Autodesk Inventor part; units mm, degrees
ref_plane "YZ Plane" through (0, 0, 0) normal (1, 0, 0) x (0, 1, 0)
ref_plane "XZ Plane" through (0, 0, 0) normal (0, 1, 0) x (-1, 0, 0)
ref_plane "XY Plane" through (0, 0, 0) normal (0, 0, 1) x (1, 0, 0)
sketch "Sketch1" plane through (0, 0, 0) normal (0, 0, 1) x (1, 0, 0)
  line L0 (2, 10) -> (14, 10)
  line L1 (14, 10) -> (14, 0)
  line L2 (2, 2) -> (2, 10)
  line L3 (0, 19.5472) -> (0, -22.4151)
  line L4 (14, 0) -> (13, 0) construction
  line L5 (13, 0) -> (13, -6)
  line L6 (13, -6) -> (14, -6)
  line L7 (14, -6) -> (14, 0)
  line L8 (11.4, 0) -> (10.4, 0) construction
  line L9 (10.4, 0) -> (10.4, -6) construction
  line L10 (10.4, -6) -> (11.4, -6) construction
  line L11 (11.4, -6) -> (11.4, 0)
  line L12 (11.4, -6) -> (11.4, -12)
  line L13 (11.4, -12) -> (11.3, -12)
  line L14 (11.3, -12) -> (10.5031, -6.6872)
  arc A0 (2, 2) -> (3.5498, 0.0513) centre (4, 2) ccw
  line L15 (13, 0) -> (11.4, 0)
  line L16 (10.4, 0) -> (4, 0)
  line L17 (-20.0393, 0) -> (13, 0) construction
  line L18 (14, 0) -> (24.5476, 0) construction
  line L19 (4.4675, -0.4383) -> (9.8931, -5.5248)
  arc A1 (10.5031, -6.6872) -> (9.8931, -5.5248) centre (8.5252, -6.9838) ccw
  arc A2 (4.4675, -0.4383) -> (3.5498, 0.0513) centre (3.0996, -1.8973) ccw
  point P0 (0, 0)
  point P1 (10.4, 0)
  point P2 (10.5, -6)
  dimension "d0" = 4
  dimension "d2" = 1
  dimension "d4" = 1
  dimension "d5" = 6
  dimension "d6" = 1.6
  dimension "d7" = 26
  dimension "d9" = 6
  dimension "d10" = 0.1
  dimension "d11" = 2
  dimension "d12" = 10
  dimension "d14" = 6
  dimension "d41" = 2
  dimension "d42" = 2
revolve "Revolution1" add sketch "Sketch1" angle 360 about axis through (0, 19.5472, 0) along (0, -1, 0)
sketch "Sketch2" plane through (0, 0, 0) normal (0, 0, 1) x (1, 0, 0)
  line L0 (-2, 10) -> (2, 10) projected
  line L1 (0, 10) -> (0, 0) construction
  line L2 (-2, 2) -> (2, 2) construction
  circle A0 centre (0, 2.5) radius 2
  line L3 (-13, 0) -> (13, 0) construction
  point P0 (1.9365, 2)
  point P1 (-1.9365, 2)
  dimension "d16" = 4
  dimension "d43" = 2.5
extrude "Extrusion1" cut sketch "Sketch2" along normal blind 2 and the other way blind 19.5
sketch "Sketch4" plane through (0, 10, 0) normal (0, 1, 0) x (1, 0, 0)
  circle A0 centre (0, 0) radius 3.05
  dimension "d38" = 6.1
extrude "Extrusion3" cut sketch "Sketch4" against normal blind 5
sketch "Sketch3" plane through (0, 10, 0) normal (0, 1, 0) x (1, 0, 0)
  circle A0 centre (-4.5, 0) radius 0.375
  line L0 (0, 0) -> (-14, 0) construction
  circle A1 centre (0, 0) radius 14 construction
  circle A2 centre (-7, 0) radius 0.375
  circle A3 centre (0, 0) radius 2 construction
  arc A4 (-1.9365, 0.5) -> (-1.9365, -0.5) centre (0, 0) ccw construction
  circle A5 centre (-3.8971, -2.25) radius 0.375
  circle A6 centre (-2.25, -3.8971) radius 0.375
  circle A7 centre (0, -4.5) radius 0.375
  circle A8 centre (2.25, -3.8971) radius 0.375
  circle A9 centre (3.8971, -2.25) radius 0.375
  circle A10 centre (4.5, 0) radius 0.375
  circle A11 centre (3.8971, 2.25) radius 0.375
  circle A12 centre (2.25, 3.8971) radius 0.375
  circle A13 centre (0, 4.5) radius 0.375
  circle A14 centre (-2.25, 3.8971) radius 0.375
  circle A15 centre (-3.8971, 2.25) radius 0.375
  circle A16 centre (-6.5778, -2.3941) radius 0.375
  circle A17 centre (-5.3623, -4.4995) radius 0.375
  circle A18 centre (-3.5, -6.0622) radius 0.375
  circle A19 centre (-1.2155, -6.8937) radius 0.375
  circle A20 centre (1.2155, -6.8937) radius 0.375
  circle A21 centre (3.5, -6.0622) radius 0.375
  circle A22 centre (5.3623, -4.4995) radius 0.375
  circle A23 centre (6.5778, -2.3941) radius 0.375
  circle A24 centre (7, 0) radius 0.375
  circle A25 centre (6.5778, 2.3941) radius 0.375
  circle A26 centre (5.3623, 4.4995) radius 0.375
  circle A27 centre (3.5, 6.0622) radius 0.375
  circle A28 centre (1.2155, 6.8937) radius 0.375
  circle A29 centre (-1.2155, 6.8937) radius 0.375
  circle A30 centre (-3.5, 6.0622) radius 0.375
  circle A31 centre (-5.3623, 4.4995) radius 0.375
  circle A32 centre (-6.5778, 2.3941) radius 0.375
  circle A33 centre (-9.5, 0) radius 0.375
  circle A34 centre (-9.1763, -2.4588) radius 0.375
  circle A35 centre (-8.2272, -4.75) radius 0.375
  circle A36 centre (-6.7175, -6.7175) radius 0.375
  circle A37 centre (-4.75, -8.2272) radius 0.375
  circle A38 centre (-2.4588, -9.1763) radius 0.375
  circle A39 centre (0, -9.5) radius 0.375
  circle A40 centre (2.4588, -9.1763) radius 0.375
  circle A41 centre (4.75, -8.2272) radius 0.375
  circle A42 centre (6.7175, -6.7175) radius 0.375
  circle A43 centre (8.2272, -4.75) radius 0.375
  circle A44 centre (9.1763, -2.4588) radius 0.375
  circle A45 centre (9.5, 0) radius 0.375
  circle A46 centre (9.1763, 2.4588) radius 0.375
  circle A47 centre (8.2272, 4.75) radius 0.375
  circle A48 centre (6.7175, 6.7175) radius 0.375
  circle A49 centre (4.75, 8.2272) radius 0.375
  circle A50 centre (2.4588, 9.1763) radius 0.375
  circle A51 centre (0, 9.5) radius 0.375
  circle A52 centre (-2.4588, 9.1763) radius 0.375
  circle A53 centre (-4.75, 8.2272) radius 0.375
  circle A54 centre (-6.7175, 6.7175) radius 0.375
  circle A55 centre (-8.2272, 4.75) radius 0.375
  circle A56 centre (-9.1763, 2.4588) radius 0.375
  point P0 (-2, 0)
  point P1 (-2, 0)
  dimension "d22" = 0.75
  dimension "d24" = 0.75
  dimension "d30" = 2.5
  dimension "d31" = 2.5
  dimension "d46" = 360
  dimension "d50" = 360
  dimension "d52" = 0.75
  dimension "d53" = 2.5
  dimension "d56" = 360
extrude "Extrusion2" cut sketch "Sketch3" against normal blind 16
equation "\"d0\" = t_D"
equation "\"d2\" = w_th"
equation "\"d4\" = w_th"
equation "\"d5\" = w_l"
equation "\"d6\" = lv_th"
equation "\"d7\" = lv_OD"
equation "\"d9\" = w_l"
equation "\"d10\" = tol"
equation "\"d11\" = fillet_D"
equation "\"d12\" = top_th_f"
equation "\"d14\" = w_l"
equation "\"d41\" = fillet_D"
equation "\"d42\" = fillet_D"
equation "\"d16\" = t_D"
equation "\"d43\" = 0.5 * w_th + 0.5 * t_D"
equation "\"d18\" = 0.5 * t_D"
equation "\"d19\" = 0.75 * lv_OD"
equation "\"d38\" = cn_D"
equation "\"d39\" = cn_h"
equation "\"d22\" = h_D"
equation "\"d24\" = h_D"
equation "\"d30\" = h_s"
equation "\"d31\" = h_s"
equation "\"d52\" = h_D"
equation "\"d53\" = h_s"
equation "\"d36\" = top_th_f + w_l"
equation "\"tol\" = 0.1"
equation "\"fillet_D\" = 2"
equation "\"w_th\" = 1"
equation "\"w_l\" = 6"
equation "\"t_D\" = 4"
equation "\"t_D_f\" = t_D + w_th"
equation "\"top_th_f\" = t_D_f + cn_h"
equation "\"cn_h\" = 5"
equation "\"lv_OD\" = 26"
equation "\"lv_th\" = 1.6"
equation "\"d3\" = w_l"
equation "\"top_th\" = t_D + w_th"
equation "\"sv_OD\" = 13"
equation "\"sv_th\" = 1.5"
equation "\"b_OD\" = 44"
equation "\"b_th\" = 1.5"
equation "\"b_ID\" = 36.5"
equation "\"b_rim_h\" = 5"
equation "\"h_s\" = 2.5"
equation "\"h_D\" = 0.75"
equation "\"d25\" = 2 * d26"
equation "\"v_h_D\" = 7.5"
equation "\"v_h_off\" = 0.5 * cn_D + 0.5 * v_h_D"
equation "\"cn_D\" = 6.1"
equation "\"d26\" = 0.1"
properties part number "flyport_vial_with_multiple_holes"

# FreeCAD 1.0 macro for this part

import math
import FreeCAD as App
import Part
import Sketcher
from FreeCAD import Vector
Q = App.Units.Quantity

doc = App.newDocument("Part")
body = doc.addObject("PartDesign::Body", "Body")

sketch1 = body.newObject("Sketcher::SketchObject", "Sketch")
sketch1.AttachmentSupport = (doc.getObject("XY_Plane"), [""])
sketch1.MapMode = "FlatFace"
sketch1.addGeometry([
    Part.LineSegment(Vector(14, 10, 0), Vector(2, 10, 0)),
    Part.LineSegment(Vector(2, 10, 0), Vector(2, 2, 0)),
    Part.ArcOfCircle(Part.Circle(Vector(4, 2, 0), Vector(0, 0, 1), 2), math.radians(180), math.radians(257)),
    Part.ArcOfCircle(Part.Circle(Vector(3.1, -1.9, 0), Vector(0, 0, 1), 2), math.radians(47), math.radians(77)),
    Part.LineSegment(Vector(4.47, -0.44, 0), Vector(9.89, -5.52, 0)),
    Part.ArcOfCircle(Part.Circle(Vector(8.53, -6.98, 0), Vector(0, 0, 1), 2), math.radians(9), math.radians(47)),
    Part.LineSegment(Vector(10.5, -6.69, 0), Vector(11.3, -12, 0)),
    Part.LineSegment(Vector(11.3, -12, 0), Vector(11.4, -12, 0)),
    Part.LineSegment(Vector(11.4, -12, 0), Vector(11.4, 0, 0)),
    Part.LineSegment(Vector(11.4, 0, 0), Vector(13, 0, 0)),
    Part.LineSegment(Vector(13, 0, 0), Vector(13, -6, 0)),
    Part.LineSegment(Vector(13, -6, 0), Vector(14, -6, 0)),
    Part.LineSegment(Vector(14, -6, 0), Vector(14, 10, 0)),
], False)
sketch1.addConstraint([
    Sketcher.Constraint("Coincident", 0, 2, 1, 1),
    Sketcher.Constraint("Tangent", 1, 2, 2, 1),
    Sketcher.Constraint("Tangent", 2, 2, 3, 2),
    Sketcher.Constraint("Tangent", 3, 1, 4, 1),
    Sketcher.Constraint("Tangent", 4, 2, 5, 2),
    Sketcher.Constraint("Tangent", 5, 1, 6, 1),
    Sketcher.Constraint("Coincident", 6, 2, 7, 1),
    Sketcher.Constraint("Coincident", 7, 2, 8, 1),
    Sketcher.Constraint("Coincident", 8, 2, 9, 1),
    Sketcher.Constraint("Coincident", 9, 2, 10, 1),
    Sketcher.Constraint("Coincident", 10, 2, 11, 1),
    Sketcher.Constraint("Coincident", 11, 2, 12, 1),
    Sketcher.Constraint("Coincident", 12, 2, 0, 1),
    Sketcher.Constraint("Horizontal", 0),
    Sketcher.Constraint("Vertical", 1),
    Sketcher.Constraint("Horizontal", 7),
    Sketcher.Constraint("Vertical", 8),
    Sketcher.Constraint("Horizontal", 9),
    Sketcher.Constraint("Vertical", 10),
    Sketcher.Constraint("Horizontal", 11),
    Sketcher.Constraint("Vertical", 12),
    Sketcher.Constraint("Equal", 2, 3),
    Sketcher.Constraint("Equal", 3, 5),
    Sketcher.Constraint("PointOnObject", 8, 2, -1),
    Sketcher.Constraint("Equal", 0, 8),
    Sketcher.Constraint("Radius", 2, 2.0),
    Sketcher.Constraint("DistanceX", 11, 1, 11, 2, 1.0),
    Sketcher.Constraint("DistanceY", 10, 2, 10, 1, 6.0),
    Sketcher.Constraint("DistanceX", 7, 1, 7, 2, 0.1),
    Sketcher.Constraint("DistanceX", 9, 1, 9, 2, 1.6),
    Sketcher.Constraint("DistanceX", -1, 1, 2, 3, 4.0),
    Sketcher.Constraint("DistanceY", -1, 1, 2, 3, 2.0),
    Sketcher.Constraint("DistanceY", -1, 1, 0, 2, 10.0),
    Sketcher.Constraint("DistanceY", 7, 2, 10, 2, 6.0),
    Sketcher.Constraint("Angle", 6, Q("-81.4694 deg")),
    Sketcher.Constraint("DistanceX", 4, 2, 5, 1, 0.61),
    Sketcher.Constraint("DistanceY", 5, 1, 3, 3, 4.79),
])
revolution = body.newObject("PartDesign::Revolution", "Revolution")
revolution.Profile = sketch1
revolution.ReferenceAxis = (sketch1, ["V_Axis"])
revolution.Angle = 360

sketch2 = body.newObject("Sketcher::SketchObject", "Sketch001")
sketch2.AttachmentSupport = (doc.getObject("XY_Plane"), [""])
sketch2.MapMode = "FlatFace"
sketch2.addGeometry(Part.Circle(Vector(0, 2.5, 0), Vector(0, 0, 1), 2), False)
sketch2.addConstraint([
    Sketcher.Constraint("PointOnObject", 0, 3, -2),
    Sketcher.Constraint("Diameter", 0, 4.0),
    Sketcher.Constraint("DistanceY", -1, 1, 0, 3, 2.5),
])
pocket1 = body.newObject("PartDesign::Pocket", "Pocket")
pocket1.Profile = sketch2
pocket1.Type = "TwoLengths"
pocket1.Length = 2
pocket1.Length2 = 19.5
pocket1.Reversed = True

sketch3 = body.newObject("Sketcher::SketchObject", "Sketch002")
sketch3.AttachmentSupport = (doc.getObject("XZ_Plane"), [""])
sketch3.MapMode = "FlatFace"
sketch3.AttachmentOffset = App.Placement(Vector(0, 0, -10), App.Rotation())
sketch3.addGeometry(Part.Circle(Vector(0, 0, 0), Vector(0, 0, 1), 3), False)
sketch3.addConstraint([
    Sketcher.Constraint("Coincident", 0, 3, -1, 1),
    Sketcher.Constraint("Diameter", 0, 6.1),
])
pocket2 = body.newObject("PartDesign::Pocket", "Pocket001")
pocket2.Profile = sketch3
pocket2.Length = 5
pocket2.Reversed = True

sketch4 = body.newObject("Sketcher::SketchObject", "Sketch003")
sketch4.AttachmentSupport = (doc.getObject("XZ_Plane"), [""])
sketch4.MapMode = "FlatFace"
sketch4.AttachmentOffset = App.Placement(Vector(0, 0, -10), App.Rotation())
sketch4.addGeometry([
    Part.Circle(Vector(-4.5, 0, 0), Vector(0, 0, 1), 0.38),
    Part.Circle(Vector(-7, 0, 0), Vector(0, 0, 1), 0.38),
    Part.Circle(Vector(-3.9, 2.25, 0), Vector(0, 0, 1), 0.38),
    Part.Circle(Vector(-2.25, 3.9, 0), Vector(0, 0, 1), 0.38),
    Part.Circle(Vector(0, 4.5, 0), Vector(0, 0, 1), 0.38),
    Part.Circle(Vector(2.25, 3.9, 0), Vector(0, 0, 1), 0.38),
    Part.Circle(Vector(3.9, 2.25, 0), Vector(0, 0, 1), 0.38),
    Part.Circle(Vector(4.5, 0, 0), Vector(0, 0, 1), 0.38),
    Part.Circle(Vector(3.9, -2.25, 0), Vector(0, 0, 1), 0.38),
    Part.Circle(Vector(2.25, -3.9, 0), Vector(0, 0, 1), 0.38),
    Part.Circle(Vector(0, -4.5, 0), Vector(0, 0, 1), 0.38),
    Part.Circle(Vector(-2.25, -3.9, 0), Vector(0, 0, 1), 0.38),
    Part.Circle(Vector(-3.9, -2.25, 0), Vector(0, 0, 1), 0.38),
    Part.Circle(Vector(-6.58, 2.39, 0), Vector(0, 0, 1), 0.38),
    Part.Circle(Vector(-5.36, 4.5, 0), Vector(0, 0, 1), 0.38),
    Part.Circle(Vector(-3.5, 6.06, 0), Vector(0, 0, 1), 0.38),
    Part.Circle(Vector(-1.22, 6.89, 0), Vector(0, 0, 1), 0.38),
    Part.Circle(Vector(1.22, 6.89, 0), Vector(0, 0, 1), 0.38),
    Part.Circle(Vector(3.5, 6.06, 0), Vector(0, 0, 1), 0.38),
    Part.Circle(Vector(5.36, 4.5, 0), Vector(0, 0, 1), 0.38),
    Part.Circle(Vector(6.58, 2.39, 0), Vector(0, 0, 1), 0.38),
    Part.Circle(Vector(7, 0, 0), Vector(0, 0, 1), 0.38),
    Part.Circle(Vector(6.58, -2.39, 0), Vector(0, 0, 1), 0.38),
    Part.Circle(Vector(5.36, -4.5, 0), Vector(0, 0, 1), 0.38),
    Part.Circle(Vector(3.5, -6.06, 0), Vector(0, 0, 1), 0.38),
    Part.Circle(Vector(1.22, -6.89, 0), Vector(0, 0, 1), 0.38),
    Part.Circle(Vector(-1.22, -6.89, 0), Vector(0, 0, 1), 0.38),
    Part.Circle(Vector(-3.5, -6.06, 0), Vector(0, 0, 1), 0.38),
    Part.Circle(Vector(-5.36, -4.5, 0), Vector(0, 0, 1), 0.38),
    Part.Circle(Vector(-6.58, -2.39, 0), Vector(0, 0, 1), 0.38),
    Part.Circle(Vector(-9.5, 0, 0), Vector(0, 0, 1), 0.38),
    Part.Circle(Vector(-9.18, 2.46, 0), Vector(0, 0, 1), 0.38),
    Part.Circle(Vector(-8.23, 4.75, 0), Vector(0, 0, 1), 0.38),
    Part.Circle(Vector(-6.72, 6.72, 0), Vector(0, 0, 1), 0.38),
    Part.Circle(Vector(-4.75, 8.23, 0), Vector(0, 0, 1), 0.38),
    Part.Circle(Vector(-2.46, 9.18, 0), Vector(0, 0, 1), 0.38),
    Part.Circle(Vector(0, 9.5, 0), Vector(0, 0, 1), 0.38),
    Part.Circle(Vector(2.46, 9.18, 0), Vector(0, 0, 1), 0.38),
    Part.Circle(Vector(4.75, 8.23, 0), Vector(0, 0, 1), 0.38),
    Part.Circle(Vector(6.72, 6.72, 0), Vector(0, 0, 1), 0.38),
    Part.Circle(Vector(8.23, 4.75, 0), Vector(0, 0, 1), 0.38),
    Part.Circle(Vector(9.18, 2.46, 0), Vector(0, 0, 1), 0.38),
    Part.Circle(Vector(9.5, 0, 0), Vector(0, 0, 1), 0.38),
    Part.Circle(Vector(9.18, -2.46, 0), Vector(0, 0, 1), 0.38),
    Part.Circle(Vector(8.23, -4.75, 0), Vector(0, 0, 1), 0.38),
    Part.Circle(Vector(6.72, -6.72, 0), Vector(0, 0, 1), 0.38),
    Part.Circle(Vector(4.75, -8.23, 0), Vector(0, 0, 1), 0.38),
    Part.Circle(Vector(2.46, -9.18, 0), Vector(0, 0, 1), 0.38),
    Part.Circle(Vector(0, -9.5, 0), Vector(0, 0, 1), 0.38),
    Part.Circle(Vector(-2.46, -9.18, 0), Vector(0, 0, 1), 0.38),
    Part.Circle(Vector(-4.75, -8.23, 0), Vector(0, 0, 1), 0.38),
    Part.Circle(Vector(-6.72, -6.72, 0), Vector(0, 0, 1), 0.38),
    Part.Circle(Vector(-8.23, -4.75, 0), Vector(0, 0, 1), 0.38),
    Part.Circle(Vector(-9.18, -2.46, 0), Vector(0, 0, 1), 0.38),
], False)
sketch4.addConstraint([
    Sketcher.Constraint("Equal", 0, 1),
    Sketcher.Constraint("Equal", 1, 2),
    Sketcher.Constraint("Equal", 2, 3),
    Sketcher.Constraint("Equal", 3, 4),
    Sketcher.Constraint("Equal", 4, 5),
    Sketcher.Constraint("Equal", 5, 6),
    Sketcher.Constraint("Equal", 6, 7),
    Sketcher.Constraint("Equal", 7, 8),
    Sketcher.Constraint("Equal", 8, 9),
    Sketcher.Constraint("Equal", 9, 10),
    Sketcher.Constraint("Equal", 10, 11),
    Sketcher.Constraint("Equal", 11, 12),
    Sketcher.Constraint("Equal", 12, 13),
    Sketcher.Constraint("Equal", 13, 14),
    Sketcher.Constraint("Equal", 14, 15),
    Sketcher.Constraint("Equal", 15, 16),
    Sketcher.Constraint("Equal", 16, 17),
    Sketcher.Constraint("Equal", 17, 18),
    Sketcher.Constraint("Equal", 18, 19),
    Sketcher.Constraint("Equal", 19, 20),
    Sketcher.Constraint("Equal", 20, 21),
    Sketcher.Constraint("Equal", 21, 22),
    Sketcher.Constraint("Equal", 22, 23),
    Sketcher.Constraint("Equal", 23, 24),
    Sketcher.Constraint("Equal", 24, 25),
    Sketcher.Constraint("Equal", 25, 26),
    Sketcher.Constraint("Equal", 26, 27),
    Sketcher.Constraint("Equal", 27, 28),
    Sketcher.Constraint("Equal", 28, 29),
    Sketcher.Constraint("Equal", 29, 30),
    Sketcher.Constraint("Equal", 30, 31),
    Sketcher.Constraint("Equal", 31, 32),
    Sketcher.Constraint("Equal", 32, 33),
    Sketcher.Constraint("Equal", 33, 34),
    Sketcher.Constraint("Equal", 34, 35),
    Sketcher.Constraint("Equal", 35, 36),
    Sketcher.Constraint("Equal", 36, 37),
    Sketcher.Constraint("Equal", 37, 38),
    Sketcher.Constraint("Equal", 38, 39),
    Sketcher.Constraint("Equal", 39, 40),
    Sketcher.Constraint("Equal", 40, 41),
    Sketcher.Constraint("Equal", 41, 42),
    Sketcher.Constraint("Equal", 42, 43),
    Sketcher.Constraint("Equal", 43, 44),
    Sketcher.Constraint("Equal", 44, 45),
    Sketcher.Constraint("Equal", 45, 46),
    Sketcher.Constraint("Equal", 46, 47),
    Sketcher.Constraint("Equal", 47, 48),
    Sketcher.Constraint("Equal", 48, 49),
    Sketcher.Constraint("Equal", 49, 50),
    Sketcher.Constraint("Equal", 50, 51),
    Sketcher.Constraint("Equal", 51, 52),
    Sketcher.Constraint("Equal", 52, 53),
    Sketcher.Constraint("Symmetric", 0, 3, 7, 3, -1, 1),
    Sketcher.Constraint("Symmetric", 2, 3, 8, 3, -1, 1),
    Sketcher.Constraint("Symmetric", 3, 3, 9, 3, -1, 1),
    Sketcher.Constraint("Symmetric", 4, 3, 10, 3, -1, 1),
    Sketcher.Constraint("Symmetric", 5, 3, 11, 3, -1, 1),
    Sketcher.Constraint("Symmetric", 6, 3, 12, 3, -1, 1),
    Sketcher.Constraint("Symmetric", 1, 3, 21, 3, -1, 1),
    Sketcher.Constraint("Symmetric", 13, 3, 22, 3, -1, 1),
    Sketcher.Constraint("Symmetric", 14, 3, 23, 3, -1, 1),
    Sketcher.Constraint("Symmetric", 15, 3, 24, 3, -1, 1),
    Sketcher.Constraint("Symmetric", 16, 3, 25, 3, -1, 1),
    Sketcher.Constraint("Symmetric", 17, 3, 26, 3, -1, 1),
    Sketcher.Constraint("Symmetric", 18, 3, 27, 3, -1, 1),
    Sketcher.Constraint("Symmetric", 19, 3, 28, 3, -1, 1),
    Sketcher.Constraint("Symmetric", 20, 3, 29, 3, -1, 1),
    Sketcher.Constraint("Symmetric", 30, 3, 42, 3, -1, 1),
    Sketcher.Constraint("Symmetric", 31, 3, 43, 3, -1, 1),
    Sketcher.Constraint("Symmetric", 32, 3, 44, 3, -1, 1),
    Sketcher.Constraint("Symmetric", 33, 3, 45, 3, -1, 1),
    Sketcher.Constraint("Symmetric", 34, 3, 46, 3, -1, 1),
    Sketcher.Constraint("Symmetric", 35, 3, 47, 3, -1, 1),
    Sketcher.Constraint("Symmetric", 36, 3, 48, 3, -1, 1),
    Sketcher.Constraint("Symmetric", 37, 3, 49, 3, -1, 1),
    Sketcher.Constraint("Symmetric", 38, 3, 50, 3, -1, 1),
    Sketcher.Constraint("Symmetric", 39, 3, 51, 3, -1, 1),
    Sketcher.Constraint("Symmetric", 40, 3, 52, 3, -1, 1),
    Sketcher.Constraint("Symmetric", 41, 3, 53, 3, -1, 1),
    Sketcher.Constraint("Symmetric", 3, 3, 5, 3, -2),
    Sketcher.Constraint("Symmetric", 2, 3, 6, 3, -2),
    Sketcher.Constraint("Symmetric", 16, 3, 17, 3, -2),
    Sketcher.Constraint("Symmetric", 15, 3, 18, 3, -2),
    Sketcher.Constraint("Symmetric", 14, 3, 19, 3, -2),
    Sketcher.Constraint("Symmetric", 13, 3, 20, 3, -2),
    Sketcher.Constraint("Symmetric", 35, 3, 37, 3, -2),
    Sketcher.Constraint("Symmetric", 34, 3, 38, 3, -2),
    Sketcher.Constraint("Symmetric", 33, 3, 39, 3, -2),
    Sketcher.Constraint("Symmetric", 32, 3, 40, 3, -2),
    Sketcher.Constraint("Symmetric", 31, 3, 41, 3, -2),
    Sketcher.Constraint("PointOnObject", 0, 3, -1),
    Sketcher.Constraint("PointOnObject", 1, 3, -1),
    Sketcher.Constraint("PointOnObject", 4, 3, -2),
    Sketcher.Constraint("PointOnObject", 30, 3, -1),
    Sketcher.Constraint("PointOnObject", 36, 3, -2),
    Sketcher.Constraint("Diameter", 0, 0.75),
    Sketcher.Constraint("DistanceX", 1, 3, 0, 3, 2.5),
    Sketcher.Constraint("DistanceX", 30, 3, 1, 3, 2.5),
    Sketcher.Constraint("DistanceX", 1, 3, -1, 1, 7.0),
    Sketcher.Constraint("DistanceY", -1, 1, 4, 3, 4.5),
    Sketcher.Constraint("DistanceX", 15, 3, -1, 1, 3.5),
    Sketcher.Constraint("DistanceY", -1, 1, 36, 3, 9.5),
    Sketcher.Constraint("DistanceX", 3, 3, 5, 3, 4.5),
    Sketcher.Constraint("DistanceY", 8, 3, 6, 3, 4.5),
    Sketcher.Constraint("DistanceY", -1, 1, 32, 3, 4.75),
    Sketcher.Constraint("DistanceX", 34, 3, -1, 1, 4.75),
    Sketcher.Constraint("DistanceX", 2, 3, -1, 1, 3.897),
    Sketcher.Constraint("DistanceY", -1, 1, 3, 3, 3.897),
    Sketcher.Constraint("DistanceY", -1, 1, 13, 3, 2.394),
    Sketcher.Constraint("DistanceY", 3, 3, 15, 3, 2.165),
    Sketcher.Constraint("DistanceX", 16, 3, 17, 3, 2.431),
    Sketcher.Constraint("DistanceX", 31, 3, 14, 3, 3.814),
    Sketcher.Constraint("DistanceX", 31, 3, 32, 3, 0.949),
    Sketcher.Constraint("DistanceY", 14, 3, 33, 3, 2.218),
    Sketcher.Constraint("DistanceY", 15, 3, 34, 3, 2.165),
    Sketcher.Constraint("DistanceY", 34, 3, 35, 3, 0.949),
    Sketcher.Constraint("DistanceX", 13, 3, -1, 1, 6.5778),
    Sketcher.Constraint("DistanceX", 14, 3, -1, 1, 5.3623),
    Sketcher.Constraint("DistanceY", -1, 1, 14, 3, 4.4995),
    Sketcher.Constraint("DistanceY", -1, 1, 16, 3, 6.8937),
    Sketcher.Constraint("DistanceY", -1, 1, 31, 3, 2.4588),
    Sketcher.Constraint("DistanceX", 33, 3, -1, 1, 6.7175),
    Sketcher.Constraint("DistanceX", 35, 3, -1, 1, 2.4588),
])
pocket3 = body.newObject("PartDesign::Pocket", "Pocket002")
pocket3.Profile = sketch4
pocket3.Length = 16
pocket3.Reversed = True

doc.recompute()
